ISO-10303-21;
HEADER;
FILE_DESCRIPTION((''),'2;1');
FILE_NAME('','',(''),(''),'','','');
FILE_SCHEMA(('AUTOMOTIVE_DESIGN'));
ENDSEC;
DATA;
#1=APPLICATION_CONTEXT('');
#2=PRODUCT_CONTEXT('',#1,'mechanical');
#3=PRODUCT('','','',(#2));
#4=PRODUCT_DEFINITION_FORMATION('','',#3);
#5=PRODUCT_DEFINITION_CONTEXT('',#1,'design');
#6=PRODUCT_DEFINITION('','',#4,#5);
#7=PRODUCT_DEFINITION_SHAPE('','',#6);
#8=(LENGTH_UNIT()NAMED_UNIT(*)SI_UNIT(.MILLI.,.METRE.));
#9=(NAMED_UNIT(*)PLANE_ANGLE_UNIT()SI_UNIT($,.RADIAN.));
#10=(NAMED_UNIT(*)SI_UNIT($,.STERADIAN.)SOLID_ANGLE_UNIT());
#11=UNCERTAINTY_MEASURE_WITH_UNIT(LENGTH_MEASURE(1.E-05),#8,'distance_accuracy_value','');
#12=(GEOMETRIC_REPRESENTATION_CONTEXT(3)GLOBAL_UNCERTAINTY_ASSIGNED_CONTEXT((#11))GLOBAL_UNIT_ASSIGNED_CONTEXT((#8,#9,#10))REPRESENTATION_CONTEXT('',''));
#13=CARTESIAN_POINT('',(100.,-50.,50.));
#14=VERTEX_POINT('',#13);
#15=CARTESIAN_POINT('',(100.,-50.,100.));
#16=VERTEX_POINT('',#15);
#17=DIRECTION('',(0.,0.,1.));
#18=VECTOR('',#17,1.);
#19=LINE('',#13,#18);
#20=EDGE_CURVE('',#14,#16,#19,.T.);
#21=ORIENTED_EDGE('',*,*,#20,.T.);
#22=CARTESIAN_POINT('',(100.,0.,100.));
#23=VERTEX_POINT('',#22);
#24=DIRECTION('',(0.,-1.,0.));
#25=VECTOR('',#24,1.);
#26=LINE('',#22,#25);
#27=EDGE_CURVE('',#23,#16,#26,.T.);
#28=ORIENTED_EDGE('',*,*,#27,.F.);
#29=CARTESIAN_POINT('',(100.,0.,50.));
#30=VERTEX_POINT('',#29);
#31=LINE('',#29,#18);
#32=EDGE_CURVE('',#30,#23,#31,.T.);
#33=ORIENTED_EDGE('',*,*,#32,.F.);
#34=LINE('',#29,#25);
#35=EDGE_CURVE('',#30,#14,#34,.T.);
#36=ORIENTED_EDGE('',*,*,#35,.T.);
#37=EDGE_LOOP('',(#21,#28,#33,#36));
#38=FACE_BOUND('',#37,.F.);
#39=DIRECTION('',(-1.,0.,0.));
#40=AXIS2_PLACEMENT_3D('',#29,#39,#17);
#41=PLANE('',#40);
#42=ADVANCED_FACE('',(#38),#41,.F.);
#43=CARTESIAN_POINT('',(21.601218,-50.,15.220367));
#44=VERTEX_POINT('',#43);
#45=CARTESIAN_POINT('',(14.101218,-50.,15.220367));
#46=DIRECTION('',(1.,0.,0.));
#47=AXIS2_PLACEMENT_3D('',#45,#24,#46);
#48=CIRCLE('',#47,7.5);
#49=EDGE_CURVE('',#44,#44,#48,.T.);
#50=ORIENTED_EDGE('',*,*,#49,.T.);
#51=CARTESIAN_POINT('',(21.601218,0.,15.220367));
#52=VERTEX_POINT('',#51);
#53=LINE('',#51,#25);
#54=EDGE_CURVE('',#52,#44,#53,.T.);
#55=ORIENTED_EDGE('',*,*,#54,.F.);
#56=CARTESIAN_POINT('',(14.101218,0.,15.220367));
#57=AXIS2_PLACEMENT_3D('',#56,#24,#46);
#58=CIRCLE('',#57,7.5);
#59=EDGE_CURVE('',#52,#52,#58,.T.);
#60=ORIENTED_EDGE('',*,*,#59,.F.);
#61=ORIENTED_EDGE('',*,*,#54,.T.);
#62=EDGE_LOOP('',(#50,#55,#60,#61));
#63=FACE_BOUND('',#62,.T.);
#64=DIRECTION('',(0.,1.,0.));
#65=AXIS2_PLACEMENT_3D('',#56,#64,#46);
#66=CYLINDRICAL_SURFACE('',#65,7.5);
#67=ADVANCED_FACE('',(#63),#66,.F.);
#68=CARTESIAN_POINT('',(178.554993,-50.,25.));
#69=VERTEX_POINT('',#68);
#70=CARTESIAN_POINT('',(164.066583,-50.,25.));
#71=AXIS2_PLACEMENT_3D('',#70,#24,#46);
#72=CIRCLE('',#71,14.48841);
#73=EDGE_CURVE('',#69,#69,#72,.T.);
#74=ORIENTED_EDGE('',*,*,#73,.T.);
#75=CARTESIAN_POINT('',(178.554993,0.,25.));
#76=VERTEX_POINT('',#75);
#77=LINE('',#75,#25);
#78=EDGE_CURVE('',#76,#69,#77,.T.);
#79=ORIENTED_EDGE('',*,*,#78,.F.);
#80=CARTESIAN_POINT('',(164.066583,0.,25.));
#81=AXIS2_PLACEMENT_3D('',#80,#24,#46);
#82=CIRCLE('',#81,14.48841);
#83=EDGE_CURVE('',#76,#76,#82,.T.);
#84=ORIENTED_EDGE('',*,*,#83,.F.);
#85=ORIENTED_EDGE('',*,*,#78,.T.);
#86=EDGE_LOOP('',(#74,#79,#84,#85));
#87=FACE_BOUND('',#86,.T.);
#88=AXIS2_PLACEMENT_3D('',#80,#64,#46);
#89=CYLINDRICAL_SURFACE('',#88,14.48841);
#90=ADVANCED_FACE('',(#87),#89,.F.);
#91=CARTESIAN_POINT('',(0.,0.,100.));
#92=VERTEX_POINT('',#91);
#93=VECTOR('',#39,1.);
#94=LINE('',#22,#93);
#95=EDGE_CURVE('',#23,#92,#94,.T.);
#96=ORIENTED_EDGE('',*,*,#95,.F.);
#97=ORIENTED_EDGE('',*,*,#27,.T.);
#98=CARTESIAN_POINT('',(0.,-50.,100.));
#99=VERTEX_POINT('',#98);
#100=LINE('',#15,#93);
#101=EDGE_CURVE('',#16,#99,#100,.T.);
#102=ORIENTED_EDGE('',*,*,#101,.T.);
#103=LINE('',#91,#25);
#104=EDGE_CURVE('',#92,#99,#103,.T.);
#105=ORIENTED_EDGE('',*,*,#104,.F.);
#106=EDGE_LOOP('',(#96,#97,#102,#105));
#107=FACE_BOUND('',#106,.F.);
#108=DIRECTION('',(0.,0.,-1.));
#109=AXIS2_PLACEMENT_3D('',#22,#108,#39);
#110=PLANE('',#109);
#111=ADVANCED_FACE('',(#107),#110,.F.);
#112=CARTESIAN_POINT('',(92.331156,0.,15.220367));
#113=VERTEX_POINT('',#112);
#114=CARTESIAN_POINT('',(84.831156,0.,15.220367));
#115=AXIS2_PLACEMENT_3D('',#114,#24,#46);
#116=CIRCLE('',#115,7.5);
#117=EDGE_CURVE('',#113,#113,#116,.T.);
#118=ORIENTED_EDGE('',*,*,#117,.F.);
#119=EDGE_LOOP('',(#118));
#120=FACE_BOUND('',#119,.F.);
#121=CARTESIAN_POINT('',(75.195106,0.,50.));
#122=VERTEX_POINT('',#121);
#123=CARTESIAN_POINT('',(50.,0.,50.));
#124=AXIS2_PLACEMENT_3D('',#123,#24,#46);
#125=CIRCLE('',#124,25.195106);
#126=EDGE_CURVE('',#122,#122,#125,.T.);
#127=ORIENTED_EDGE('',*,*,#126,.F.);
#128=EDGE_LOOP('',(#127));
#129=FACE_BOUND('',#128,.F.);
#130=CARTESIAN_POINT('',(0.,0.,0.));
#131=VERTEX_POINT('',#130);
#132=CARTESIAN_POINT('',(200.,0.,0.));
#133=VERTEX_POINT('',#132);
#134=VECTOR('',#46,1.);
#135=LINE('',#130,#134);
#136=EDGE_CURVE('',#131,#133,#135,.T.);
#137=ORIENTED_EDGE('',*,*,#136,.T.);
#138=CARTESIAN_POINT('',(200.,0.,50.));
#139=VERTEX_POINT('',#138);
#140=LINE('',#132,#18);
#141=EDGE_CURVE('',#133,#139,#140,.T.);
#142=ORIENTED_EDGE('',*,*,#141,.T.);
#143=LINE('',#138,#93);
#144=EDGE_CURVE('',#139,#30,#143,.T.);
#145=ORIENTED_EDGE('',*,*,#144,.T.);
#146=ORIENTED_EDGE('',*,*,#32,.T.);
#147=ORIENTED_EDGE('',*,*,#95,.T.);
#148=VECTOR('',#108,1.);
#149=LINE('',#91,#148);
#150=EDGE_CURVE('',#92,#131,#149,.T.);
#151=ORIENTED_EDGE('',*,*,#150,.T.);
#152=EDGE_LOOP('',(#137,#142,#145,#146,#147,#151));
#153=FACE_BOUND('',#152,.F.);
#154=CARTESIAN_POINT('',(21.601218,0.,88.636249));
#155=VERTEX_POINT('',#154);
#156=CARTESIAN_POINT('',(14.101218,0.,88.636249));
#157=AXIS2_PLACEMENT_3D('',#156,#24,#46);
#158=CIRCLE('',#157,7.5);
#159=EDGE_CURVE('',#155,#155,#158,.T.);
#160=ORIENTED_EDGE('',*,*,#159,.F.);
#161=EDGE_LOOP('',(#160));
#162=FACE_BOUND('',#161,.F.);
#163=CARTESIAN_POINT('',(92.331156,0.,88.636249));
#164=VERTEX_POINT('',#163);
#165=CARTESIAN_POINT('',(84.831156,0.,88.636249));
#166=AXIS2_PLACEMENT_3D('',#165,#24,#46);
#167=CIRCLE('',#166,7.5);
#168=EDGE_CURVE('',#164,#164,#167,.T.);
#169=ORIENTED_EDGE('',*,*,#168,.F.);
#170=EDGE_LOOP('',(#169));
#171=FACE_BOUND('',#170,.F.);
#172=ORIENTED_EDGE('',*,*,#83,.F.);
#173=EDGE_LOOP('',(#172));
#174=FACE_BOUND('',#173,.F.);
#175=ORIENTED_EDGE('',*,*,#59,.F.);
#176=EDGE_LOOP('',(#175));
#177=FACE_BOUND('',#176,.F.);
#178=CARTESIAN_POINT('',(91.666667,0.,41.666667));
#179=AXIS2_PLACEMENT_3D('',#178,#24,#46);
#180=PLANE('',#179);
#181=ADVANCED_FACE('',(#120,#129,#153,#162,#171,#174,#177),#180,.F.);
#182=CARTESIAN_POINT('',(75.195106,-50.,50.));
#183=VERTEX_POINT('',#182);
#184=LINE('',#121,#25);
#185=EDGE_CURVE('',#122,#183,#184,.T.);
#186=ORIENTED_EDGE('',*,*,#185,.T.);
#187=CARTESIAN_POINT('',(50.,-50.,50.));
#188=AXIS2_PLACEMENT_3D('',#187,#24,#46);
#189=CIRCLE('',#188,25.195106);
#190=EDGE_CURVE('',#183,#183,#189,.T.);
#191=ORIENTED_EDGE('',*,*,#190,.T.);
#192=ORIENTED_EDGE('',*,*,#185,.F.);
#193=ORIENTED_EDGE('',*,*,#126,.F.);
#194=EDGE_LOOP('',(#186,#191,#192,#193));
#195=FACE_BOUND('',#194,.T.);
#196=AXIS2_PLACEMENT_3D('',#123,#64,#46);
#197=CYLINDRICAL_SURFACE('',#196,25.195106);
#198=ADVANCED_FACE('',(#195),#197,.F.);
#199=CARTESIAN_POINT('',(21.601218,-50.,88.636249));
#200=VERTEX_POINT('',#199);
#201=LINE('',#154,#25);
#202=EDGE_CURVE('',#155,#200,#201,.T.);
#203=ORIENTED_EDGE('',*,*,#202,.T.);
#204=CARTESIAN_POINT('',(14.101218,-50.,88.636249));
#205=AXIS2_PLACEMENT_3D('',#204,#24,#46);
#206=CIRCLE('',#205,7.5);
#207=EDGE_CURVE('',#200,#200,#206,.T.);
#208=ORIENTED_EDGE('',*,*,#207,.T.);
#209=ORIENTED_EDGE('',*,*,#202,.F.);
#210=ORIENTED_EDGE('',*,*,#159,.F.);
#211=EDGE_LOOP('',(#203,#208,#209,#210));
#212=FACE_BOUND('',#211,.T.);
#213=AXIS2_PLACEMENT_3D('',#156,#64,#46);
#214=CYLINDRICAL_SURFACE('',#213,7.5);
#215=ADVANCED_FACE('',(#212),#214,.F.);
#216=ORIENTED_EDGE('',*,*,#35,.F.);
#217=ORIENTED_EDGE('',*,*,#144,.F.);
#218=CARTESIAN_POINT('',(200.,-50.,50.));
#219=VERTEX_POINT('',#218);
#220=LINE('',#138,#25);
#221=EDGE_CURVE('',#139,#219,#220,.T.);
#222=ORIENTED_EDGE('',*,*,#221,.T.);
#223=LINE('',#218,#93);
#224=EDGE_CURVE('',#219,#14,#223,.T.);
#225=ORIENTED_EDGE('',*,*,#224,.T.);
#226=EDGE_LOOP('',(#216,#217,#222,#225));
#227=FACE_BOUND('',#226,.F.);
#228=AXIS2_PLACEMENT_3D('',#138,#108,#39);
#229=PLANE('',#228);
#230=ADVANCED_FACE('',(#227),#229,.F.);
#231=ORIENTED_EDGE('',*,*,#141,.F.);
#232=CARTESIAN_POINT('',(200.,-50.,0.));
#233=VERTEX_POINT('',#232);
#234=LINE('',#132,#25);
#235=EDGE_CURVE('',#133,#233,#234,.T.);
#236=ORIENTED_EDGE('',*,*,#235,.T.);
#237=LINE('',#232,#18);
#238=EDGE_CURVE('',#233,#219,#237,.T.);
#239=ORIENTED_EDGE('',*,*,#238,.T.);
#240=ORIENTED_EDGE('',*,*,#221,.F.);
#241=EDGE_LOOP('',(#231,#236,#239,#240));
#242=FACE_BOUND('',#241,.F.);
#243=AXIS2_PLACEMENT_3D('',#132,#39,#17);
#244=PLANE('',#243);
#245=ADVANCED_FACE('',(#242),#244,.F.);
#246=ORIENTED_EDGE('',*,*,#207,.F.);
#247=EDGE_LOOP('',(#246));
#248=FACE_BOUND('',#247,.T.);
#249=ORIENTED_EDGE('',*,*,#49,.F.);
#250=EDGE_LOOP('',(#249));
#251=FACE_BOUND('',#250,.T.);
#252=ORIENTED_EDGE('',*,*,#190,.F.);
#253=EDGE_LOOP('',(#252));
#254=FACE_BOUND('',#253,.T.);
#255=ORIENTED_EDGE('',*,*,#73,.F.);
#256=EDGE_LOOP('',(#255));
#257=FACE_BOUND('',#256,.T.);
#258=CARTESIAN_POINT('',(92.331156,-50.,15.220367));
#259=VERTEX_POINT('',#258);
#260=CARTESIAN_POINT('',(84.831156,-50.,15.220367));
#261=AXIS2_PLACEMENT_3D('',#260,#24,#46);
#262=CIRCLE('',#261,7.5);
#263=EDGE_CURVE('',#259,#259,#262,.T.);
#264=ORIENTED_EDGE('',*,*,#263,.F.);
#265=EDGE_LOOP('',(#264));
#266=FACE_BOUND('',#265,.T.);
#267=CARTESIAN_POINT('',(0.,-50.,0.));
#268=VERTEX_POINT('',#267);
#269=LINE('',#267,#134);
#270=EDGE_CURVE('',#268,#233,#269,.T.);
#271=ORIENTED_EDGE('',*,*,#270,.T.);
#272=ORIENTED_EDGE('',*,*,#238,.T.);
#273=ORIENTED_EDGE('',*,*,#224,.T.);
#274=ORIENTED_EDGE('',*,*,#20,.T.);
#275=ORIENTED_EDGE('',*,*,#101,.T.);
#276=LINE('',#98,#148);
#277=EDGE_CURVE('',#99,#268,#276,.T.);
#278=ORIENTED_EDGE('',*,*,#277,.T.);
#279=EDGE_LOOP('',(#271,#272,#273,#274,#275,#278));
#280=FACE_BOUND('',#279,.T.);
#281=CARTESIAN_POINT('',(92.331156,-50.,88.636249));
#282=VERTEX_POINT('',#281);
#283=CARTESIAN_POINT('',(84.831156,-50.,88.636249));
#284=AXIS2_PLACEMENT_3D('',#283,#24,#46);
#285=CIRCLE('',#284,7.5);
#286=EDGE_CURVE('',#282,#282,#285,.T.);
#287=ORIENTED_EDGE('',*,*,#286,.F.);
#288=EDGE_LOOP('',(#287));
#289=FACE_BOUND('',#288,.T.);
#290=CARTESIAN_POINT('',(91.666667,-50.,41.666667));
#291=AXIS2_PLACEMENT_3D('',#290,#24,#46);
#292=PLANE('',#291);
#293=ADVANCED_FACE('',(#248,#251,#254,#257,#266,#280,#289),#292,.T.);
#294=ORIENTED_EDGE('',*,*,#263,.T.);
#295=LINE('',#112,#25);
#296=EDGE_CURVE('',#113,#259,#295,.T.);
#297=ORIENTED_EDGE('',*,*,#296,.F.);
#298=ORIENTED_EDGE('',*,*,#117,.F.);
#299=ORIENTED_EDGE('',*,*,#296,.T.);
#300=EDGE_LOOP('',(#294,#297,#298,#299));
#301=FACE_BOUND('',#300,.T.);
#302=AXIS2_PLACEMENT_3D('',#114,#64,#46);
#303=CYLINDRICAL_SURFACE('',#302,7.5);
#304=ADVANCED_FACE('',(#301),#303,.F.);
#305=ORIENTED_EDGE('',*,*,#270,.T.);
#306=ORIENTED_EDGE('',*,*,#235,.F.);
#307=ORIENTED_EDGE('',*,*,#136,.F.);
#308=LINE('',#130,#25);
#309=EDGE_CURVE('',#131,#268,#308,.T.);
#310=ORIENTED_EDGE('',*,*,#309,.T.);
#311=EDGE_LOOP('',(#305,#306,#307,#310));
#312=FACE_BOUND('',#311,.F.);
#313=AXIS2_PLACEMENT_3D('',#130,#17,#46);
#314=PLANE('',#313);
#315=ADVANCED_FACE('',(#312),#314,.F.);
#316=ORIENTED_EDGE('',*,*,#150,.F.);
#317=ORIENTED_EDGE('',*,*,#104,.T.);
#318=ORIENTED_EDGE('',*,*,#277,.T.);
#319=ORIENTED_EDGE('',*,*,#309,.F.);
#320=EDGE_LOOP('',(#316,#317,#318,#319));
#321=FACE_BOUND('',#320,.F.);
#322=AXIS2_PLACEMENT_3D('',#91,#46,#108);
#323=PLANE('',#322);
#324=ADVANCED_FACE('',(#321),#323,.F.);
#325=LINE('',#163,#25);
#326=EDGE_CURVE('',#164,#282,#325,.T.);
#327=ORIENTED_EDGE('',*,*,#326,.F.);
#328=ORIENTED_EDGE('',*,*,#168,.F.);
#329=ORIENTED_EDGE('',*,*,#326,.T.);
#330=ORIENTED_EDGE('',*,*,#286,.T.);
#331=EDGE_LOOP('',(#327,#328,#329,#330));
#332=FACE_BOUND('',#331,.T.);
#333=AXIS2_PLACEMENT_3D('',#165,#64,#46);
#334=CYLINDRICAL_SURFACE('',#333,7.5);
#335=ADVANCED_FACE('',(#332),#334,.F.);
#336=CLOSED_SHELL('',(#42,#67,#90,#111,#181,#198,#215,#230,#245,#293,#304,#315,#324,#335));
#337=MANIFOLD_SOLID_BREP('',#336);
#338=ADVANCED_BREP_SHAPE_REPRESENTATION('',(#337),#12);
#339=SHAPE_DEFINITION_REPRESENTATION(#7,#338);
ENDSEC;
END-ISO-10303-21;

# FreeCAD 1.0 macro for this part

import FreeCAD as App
import Part
import Sketcher

V = App.Vector

doc = App.newDocument("Part")
body = doc.addObject("PartDesign::Body", "Body")

# Sketch on XZ plane
sketch1 = doc.addObject("Sketcher::SketchObject", "Sketch")
body.addObject(sketch1)
sketch1.AttachmentSupport = (doc.XZ_Plane, [""])
sketch1.MapMode = "FlatFace"
sketch1.addGeometry([
    Part.LineSegment(V(0, 100, 0), V(0, 0, 0)),  # 0
    Part.LineSegment(V(0, 0, 0), V(200, 0, 0)),  # 1
    Part.LineSegment(V(200, 0, 0), V(200, 50, 0)),  # 2
    Part.LineSegment(V(200, 50, 0), V(100, 50, 0)),  # 3
    Part.LineSegment(V(100, 50, 0), V(100, 100, 0)),  # 4
    Part.LineSegment(V(100, 100, 0), V(0, 100, 0)),  # 5
    Part.Circle(V(14, 15, 0), V(0, 0, 1), 8),  # 6
    Part.Circle(V(85, 15, 0), V(0, 0, 1), 8),  # 7
    Part.Circle(V(50, 50, 0), V(0, 0, 1), 25),  # 8
    Part.Circle(V(164, 25, 0), V(0, 0, 1), 14),  # 9
    Part.Circle(V(14, 89, 0), V(0, 0, 1), 8),  # 10
    Part.Circle(V(85, 89, 0), V(0, 0, 1), 8),  # 11
], False)
sketch1.addConstraint([
    Sketcher.Constraint("Coincident", 0, 2, 1, 1),
    Sketcher.Constraint("Coincident", 1, 2, 2, 1),
    Sketcher.Constraint("Coincident", 2, 2, 3, 1),
    Sketcher.Constraint("Coincident", 3, 2, 4, 1),
    Sketcher.Constraint("Coincident", 4, 2, 5, 1),
    Sketcher.Constraint("Coincident", 5, 2, 0, 1),
    Sketcher.Constraint("Vertical", 0),
    Sketcher.Constraint("Horizontal", 1),
    Sketcher.Constraint("Vertical", 2),
    Sketcher.Constraint("Horizontal", 3),
    Sketcher.Constraint("Vertical", 4),
    Sketcher.Constraint("Horizontal", 5),
    Sketcher.Constraint("Coincident", 0, 2, -1, 1),
    Sketcher.Constraint("Equal", 6, 7),
    Sketcher.Constraint("Equal", 7, 10),
    Sketcher.Constraint("Equal", 10, 11),
    Sketcher.Constraint("Horizontal", 6, 3, 7, 3),
    Sketcher.Constraint("Horizontal", 10, 3, 11, 3),
    Sketcher.Constraint("Horizontal", 8, 3, 2, 2),
    Sketcher.Constraint("Vertical", 6, 3, 10, 3),
    Sketcher.Constraint("Vertical", 7, 3, 11, 3),
    Sketcher.Constraint("Equal", 3, 5),
    Sketcher.Constraint("Equal", 5, 0),
    Sketcher.Constraint("Equal", 2, 4),
    Sketcher.Constraint("Diameter", 6, 15.0),
    Sketcher.Constraint("DistanceX", 1, 1, 1, 2, 200.0),
    Sketcher.Constraint("DistanceX", -1, 1, 8, 3, 50.0),
    Sketcher.Constraint("DistanceY", -1, 1, 9, 3, 25.0),
    Sketcher.Constraint("Diameter", 8, 50.390212),
    Sketcher.Constraint("Diameter", 9, 28.97682),
    Sketcher.Constraint("DistanceY", -1, 1, 10, 3, 88.636249),
    Sketcher.Constraint("DistanceX", 6, 3, 8, 3, 35.898782),
    Sketcher.Constraint("DistanceY", -1, 1, 6, 3, 15.220367),
    Sketcher.Constraint("DistanceX", -1, 1, 7, 3, 84.831156),
    Sketcher.Constraint("DistanceX", -1, 1, 9, 3, 164.066583),
])
pad1 = doc.addObject("PartDesign::Pad", "Pad")
body.addObject(pad1)
pad1.Profile = sketch1
pad1.Length = 50

doc.recompute()
